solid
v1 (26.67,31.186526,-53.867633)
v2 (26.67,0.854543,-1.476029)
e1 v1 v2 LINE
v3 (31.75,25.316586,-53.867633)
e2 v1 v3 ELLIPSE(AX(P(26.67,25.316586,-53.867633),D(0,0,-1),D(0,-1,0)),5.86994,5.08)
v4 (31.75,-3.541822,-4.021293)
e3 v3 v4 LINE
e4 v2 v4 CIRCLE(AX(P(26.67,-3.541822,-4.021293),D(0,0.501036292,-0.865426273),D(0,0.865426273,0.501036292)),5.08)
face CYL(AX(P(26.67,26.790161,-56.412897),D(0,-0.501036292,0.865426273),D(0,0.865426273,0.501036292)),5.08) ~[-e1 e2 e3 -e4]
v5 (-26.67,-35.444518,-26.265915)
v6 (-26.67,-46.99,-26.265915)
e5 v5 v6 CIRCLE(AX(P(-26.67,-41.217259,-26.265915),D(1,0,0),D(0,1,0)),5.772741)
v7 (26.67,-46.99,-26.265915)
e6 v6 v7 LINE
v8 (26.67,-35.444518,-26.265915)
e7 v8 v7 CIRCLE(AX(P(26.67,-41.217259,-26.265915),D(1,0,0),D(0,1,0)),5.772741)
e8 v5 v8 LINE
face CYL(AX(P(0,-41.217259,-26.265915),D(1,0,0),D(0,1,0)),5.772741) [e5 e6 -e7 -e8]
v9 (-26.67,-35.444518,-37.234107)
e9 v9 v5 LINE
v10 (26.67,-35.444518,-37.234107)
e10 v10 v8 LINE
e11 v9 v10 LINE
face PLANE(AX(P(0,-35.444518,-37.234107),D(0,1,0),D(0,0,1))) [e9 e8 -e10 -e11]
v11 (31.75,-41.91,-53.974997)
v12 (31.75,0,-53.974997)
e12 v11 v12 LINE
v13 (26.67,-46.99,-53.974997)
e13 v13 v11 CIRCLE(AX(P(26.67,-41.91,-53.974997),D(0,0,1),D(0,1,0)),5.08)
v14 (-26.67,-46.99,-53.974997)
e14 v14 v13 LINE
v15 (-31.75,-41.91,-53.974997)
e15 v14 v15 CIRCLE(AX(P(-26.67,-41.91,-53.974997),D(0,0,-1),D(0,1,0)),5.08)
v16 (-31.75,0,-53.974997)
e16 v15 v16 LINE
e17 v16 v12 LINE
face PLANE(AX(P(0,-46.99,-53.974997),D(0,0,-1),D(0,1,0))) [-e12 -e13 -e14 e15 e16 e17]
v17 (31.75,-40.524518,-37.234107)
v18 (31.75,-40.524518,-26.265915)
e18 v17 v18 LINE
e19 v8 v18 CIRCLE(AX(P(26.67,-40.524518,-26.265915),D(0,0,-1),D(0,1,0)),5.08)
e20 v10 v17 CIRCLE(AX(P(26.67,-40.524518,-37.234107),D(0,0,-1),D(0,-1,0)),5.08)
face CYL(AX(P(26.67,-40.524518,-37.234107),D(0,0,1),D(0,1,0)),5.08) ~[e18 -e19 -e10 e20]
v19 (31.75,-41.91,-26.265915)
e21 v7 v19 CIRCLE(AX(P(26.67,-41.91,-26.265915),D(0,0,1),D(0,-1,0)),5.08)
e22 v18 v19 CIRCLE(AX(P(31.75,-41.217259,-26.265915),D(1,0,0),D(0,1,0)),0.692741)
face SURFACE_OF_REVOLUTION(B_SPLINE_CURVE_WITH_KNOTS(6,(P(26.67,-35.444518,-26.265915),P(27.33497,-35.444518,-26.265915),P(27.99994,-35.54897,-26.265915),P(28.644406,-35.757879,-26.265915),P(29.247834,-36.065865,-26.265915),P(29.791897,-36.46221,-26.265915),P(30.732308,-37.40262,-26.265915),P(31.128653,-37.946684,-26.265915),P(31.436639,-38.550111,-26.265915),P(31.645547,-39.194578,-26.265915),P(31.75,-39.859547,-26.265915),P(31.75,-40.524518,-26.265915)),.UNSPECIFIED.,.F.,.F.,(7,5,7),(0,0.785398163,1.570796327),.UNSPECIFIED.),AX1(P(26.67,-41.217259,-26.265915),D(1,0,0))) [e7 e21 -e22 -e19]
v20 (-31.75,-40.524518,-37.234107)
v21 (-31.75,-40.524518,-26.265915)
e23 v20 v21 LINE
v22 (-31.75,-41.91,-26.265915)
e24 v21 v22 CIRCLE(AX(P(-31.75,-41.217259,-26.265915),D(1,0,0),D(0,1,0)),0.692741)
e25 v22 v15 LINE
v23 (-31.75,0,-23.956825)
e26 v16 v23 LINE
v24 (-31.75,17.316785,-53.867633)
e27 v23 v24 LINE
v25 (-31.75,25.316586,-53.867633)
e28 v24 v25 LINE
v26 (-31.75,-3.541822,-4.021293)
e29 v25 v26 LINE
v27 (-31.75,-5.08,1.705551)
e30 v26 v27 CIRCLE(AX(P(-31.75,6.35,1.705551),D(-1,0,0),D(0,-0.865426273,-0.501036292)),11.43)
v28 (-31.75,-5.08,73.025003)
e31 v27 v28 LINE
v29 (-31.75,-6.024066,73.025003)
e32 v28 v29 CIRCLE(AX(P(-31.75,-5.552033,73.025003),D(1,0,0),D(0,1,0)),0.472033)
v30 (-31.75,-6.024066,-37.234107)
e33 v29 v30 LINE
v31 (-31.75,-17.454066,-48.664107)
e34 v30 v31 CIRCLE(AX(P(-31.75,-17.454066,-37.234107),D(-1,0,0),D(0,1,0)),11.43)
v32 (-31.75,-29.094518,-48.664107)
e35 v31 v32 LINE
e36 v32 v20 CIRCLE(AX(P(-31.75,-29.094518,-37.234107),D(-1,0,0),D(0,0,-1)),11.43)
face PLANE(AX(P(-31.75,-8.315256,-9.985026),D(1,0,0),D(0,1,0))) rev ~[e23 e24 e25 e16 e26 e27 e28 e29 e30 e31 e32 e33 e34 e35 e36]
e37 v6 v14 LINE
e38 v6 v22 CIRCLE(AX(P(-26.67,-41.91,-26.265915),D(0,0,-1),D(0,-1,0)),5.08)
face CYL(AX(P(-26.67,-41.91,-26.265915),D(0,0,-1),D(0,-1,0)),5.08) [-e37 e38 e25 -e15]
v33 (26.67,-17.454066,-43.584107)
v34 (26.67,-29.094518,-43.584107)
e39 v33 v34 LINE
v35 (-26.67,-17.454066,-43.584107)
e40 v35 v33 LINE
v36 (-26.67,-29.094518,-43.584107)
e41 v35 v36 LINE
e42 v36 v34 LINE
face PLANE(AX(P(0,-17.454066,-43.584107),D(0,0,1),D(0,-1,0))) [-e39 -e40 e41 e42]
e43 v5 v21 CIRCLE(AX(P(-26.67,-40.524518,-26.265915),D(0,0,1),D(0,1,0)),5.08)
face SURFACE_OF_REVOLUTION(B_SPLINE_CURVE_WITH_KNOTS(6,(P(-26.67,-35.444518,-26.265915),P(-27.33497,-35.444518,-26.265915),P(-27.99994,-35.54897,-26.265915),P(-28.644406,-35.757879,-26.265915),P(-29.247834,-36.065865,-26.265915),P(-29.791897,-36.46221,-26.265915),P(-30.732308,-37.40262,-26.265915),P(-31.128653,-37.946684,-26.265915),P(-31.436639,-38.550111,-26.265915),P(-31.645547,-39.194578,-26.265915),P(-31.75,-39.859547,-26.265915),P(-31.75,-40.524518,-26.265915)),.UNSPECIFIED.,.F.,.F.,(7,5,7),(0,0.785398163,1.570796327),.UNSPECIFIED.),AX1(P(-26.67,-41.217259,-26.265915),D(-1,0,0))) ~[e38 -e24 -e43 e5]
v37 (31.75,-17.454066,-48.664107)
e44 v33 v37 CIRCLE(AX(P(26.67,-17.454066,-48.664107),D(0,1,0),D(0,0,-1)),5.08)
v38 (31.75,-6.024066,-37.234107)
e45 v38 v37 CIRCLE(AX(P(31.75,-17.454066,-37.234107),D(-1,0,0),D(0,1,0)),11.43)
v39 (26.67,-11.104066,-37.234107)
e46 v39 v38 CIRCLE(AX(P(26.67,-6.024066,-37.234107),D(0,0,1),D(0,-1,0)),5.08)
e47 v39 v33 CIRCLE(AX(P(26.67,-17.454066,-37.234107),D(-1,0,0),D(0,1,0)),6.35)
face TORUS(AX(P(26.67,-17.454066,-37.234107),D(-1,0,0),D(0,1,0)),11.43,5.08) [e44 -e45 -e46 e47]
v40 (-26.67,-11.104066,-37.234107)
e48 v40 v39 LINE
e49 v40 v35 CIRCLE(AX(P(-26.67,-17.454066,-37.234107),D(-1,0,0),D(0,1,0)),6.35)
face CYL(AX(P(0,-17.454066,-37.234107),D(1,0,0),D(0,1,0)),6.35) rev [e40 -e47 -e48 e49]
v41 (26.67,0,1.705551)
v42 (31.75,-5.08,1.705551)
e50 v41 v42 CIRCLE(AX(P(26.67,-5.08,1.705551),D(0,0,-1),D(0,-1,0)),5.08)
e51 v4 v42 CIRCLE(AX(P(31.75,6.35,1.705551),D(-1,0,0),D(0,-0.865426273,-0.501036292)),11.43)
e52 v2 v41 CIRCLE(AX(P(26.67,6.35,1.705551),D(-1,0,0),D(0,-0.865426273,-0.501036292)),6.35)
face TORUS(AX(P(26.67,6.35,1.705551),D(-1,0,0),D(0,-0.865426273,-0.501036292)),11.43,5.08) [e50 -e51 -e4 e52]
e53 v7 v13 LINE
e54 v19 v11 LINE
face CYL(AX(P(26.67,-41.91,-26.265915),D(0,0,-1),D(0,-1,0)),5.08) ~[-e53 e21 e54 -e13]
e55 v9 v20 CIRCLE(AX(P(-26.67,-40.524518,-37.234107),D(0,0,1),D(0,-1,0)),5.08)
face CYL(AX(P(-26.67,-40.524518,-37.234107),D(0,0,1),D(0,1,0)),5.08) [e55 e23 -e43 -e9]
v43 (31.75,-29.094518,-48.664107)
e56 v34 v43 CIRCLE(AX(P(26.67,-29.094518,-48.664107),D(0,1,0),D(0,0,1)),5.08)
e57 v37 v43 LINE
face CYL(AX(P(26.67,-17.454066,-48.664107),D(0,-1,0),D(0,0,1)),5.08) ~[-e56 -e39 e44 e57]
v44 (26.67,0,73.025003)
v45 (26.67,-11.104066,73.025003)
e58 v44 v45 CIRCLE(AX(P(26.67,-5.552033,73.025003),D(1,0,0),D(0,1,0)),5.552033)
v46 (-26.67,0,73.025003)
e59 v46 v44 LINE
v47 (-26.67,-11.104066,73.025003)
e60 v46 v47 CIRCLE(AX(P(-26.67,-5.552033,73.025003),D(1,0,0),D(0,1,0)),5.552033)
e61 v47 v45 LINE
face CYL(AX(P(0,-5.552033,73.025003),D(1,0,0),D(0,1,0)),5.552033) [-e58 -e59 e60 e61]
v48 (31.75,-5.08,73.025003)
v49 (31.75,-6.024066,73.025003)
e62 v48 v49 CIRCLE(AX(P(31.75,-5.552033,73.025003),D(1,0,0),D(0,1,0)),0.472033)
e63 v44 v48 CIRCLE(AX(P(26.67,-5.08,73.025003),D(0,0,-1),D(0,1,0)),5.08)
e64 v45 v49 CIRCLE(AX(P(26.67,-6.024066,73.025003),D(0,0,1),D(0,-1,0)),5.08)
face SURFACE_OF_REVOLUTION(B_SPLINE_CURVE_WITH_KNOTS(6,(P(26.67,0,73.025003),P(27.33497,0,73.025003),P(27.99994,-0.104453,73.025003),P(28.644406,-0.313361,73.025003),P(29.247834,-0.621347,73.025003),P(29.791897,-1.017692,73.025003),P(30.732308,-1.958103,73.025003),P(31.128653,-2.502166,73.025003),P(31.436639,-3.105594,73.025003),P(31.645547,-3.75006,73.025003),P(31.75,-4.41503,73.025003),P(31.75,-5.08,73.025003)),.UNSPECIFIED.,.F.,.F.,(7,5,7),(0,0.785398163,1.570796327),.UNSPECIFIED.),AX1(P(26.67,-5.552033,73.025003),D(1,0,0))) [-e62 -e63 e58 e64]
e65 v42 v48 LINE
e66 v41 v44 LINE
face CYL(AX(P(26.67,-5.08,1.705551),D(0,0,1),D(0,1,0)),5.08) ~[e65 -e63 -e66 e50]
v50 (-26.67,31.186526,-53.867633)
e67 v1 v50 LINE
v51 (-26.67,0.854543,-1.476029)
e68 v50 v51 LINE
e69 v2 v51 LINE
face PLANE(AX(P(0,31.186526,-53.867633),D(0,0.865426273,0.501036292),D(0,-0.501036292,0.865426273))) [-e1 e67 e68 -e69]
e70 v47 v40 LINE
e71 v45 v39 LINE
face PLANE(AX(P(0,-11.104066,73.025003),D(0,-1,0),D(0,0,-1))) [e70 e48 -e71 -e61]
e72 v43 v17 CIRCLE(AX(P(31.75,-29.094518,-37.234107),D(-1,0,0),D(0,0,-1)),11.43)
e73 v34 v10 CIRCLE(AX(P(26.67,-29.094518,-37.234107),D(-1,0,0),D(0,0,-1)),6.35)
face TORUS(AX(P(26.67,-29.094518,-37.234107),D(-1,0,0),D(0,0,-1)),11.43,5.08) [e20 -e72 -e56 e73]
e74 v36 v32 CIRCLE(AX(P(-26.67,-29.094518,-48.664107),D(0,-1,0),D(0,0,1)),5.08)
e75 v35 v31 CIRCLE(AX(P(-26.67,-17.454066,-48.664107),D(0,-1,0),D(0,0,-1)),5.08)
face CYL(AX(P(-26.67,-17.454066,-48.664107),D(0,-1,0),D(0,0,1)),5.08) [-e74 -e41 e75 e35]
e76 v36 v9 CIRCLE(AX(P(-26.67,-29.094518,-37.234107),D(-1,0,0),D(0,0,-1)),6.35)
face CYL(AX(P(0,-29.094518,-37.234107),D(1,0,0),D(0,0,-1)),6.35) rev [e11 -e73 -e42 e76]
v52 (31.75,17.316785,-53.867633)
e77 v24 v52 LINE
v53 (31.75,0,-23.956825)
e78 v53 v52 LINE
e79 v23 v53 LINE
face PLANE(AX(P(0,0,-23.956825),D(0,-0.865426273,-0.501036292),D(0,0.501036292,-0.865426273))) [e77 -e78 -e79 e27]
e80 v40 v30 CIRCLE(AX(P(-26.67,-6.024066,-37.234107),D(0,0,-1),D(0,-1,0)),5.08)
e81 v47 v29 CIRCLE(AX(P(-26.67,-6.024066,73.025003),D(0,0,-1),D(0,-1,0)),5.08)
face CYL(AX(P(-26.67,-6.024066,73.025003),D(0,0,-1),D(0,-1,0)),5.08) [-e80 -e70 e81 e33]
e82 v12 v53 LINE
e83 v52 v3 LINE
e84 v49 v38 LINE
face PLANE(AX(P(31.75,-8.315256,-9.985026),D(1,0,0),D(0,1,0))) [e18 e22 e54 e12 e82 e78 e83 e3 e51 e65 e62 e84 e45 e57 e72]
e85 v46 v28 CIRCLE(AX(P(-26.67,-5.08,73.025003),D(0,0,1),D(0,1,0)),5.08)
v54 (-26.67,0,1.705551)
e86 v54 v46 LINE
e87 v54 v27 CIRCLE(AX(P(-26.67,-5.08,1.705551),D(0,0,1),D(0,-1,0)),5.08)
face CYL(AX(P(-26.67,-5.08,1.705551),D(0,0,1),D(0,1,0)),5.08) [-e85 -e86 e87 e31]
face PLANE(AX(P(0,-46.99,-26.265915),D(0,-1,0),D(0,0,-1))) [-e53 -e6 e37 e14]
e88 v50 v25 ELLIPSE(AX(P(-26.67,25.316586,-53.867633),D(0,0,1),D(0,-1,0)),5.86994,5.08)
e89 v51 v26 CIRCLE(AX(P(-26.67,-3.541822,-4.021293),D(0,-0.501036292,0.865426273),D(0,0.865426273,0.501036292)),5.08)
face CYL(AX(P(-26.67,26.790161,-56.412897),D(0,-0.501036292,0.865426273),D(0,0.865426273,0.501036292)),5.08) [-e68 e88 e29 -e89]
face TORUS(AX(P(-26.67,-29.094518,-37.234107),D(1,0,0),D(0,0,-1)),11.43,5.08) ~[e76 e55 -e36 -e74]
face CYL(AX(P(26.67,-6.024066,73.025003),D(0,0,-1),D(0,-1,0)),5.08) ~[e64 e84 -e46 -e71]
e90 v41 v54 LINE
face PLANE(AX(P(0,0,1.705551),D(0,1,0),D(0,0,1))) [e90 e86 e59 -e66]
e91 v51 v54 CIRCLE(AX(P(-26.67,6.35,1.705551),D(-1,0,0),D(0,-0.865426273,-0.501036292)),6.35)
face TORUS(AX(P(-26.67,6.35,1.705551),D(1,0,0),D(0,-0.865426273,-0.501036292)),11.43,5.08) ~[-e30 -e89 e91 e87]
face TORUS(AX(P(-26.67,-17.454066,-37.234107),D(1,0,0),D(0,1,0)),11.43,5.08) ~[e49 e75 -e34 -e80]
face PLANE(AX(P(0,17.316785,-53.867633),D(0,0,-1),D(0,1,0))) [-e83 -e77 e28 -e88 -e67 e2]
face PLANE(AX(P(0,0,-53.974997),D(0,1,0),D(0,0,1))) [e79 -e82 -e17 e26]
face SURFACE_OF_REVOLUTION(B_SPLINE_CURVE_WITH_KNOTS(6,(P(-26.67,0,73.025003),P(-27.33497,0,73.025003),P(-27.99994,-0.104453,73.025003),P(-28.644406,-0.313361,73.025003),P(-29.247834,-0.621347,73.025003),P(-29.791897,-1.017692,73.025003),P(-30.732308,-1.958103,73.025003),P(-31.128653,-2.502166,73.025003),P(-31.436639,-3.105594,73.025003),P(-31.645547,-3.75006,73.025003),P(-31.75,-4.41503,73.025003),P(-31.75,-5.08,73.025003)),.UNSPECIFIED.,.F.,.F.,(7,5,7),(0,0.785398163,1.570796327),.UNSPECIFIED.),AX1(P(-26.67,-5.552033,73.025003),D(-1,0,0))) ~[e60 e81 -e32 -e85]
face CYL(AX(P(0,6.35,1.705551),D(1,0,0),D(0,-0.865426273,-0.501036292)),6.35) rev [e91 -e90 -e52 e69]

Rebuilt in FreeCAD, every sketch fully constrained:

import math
import FreeCAD as App
import Part
import Sketcher
from FreeCAD import Vector
Q = App.Units.Quantity


def edges_at(feature, points):
    """Names of the edges that pass closest to the given points."""
    edges = feature.Shape.Edges
    near = lambda p: min(range(len(edges)), key=lambda i: edges[i].distToShape(Part.Vertex(*p))[0])
    return sorted({f"Edge{near(p) + 1}" for p in points})

doc = App.newDocument("Part")
body = doc.addObject("PartDesign::Body", "Body")

# Sketch on YZ plane
sketch1 = body.newObject("Sketcher::SketchObject", "Sketch")
sketch1.AttachmentSupport = (doc.getObject("YZ_Plane"), [""])
sketch1.MapMode = "FlatFace"
sketch1.addGeometry([
    Part.LineSegment(Vector(0, 1.7, 0), Vector(0, 73, 0)),  # 0
    Part.ArcOfCircle(Part.Circle(Vector(-5.6, 73, 0), Vector(0, 0, 1), 5.6), math.radians(0), math.radians(180)),  # 1
    Part.LineSegment(Vector(-11.1, 73, 0), Vector(-11.1, -37.2, 0)),  # 2
    Part.ArcOfCircle(Part.Circle(Vector(-17.5, -37.2, 0), Vector(0, 0, 1), 6.3), math.radians(-90), math.radians(0)),  # 3
    Part.LineSegment(Vector(-17.5, -43.6, 0), Vector(-29.1, -43.6, 0)),  # 4
    Part.ArcOfCircle(Part.Circle(Vector(-29.1, -37.2, 0), Vector(0, 0, 1), 6.3), math.radians(180), math.radians(270)),  # 5
    Part.LineSegment(Vector(-35.4, -37.2, 0), Vector(-35.4, -26.3, 0)),  # 6
    Part.ArcOfCircle(Part.Circle(Vector(-41.2, -26.3, 0), Vector(0, 0, 1), 5.8), math.radians(0), math.radians(180)),  # 7
    Part.LineSegment(Vector(-47, -26.3, 0), Vector(-47, -54, 0)),  # 8
    Part.LineSegment(Vector(-47, -54, 0), Vector(0, -54, 0)),  # 9
    Part.LineSegment(Vector(0, -54, 0), Vector(0, -24, 0)),  # 10
    Part.LineSegment(Vector(0, -24, 0), Vector(17.3, -53.9, 0)),  # 11
    Part.LineSegment(Vector(17.3, -53.9, 0), Vector(31.2, -53.9, 0)),  # 12
    Part.LineSegment(Vector(31.2, -53.9, 0), Vector(0.9, -1.5, 0)),  # 13
    Part.ArcOfCircle(Part.Circle(Vector(6.3, 1.7, 0), Vector(0, 0, 1), 6.3), math.radians(180), math.radians(210)),  # 14
], False)
sketch1.addConstraint([
    Sketcher.Constraint("Tangent", 0, 2, 1, 1),
    Sketcher.Constraint("Tangent", 1, 2, 2, 1),
    Sketcher.Constraint("Tangent", 2, 2, 3, 2),
    Sketcher.Constraint("Tangent", 3, 1, 4, 1),
    Sketcher.Constraint("Tangent", 4, 2, 5, 2),
    Sketcher.Constraint("Tangent", 5, 1, 6, 1),
    Sketcher.Constraint("Tangent", 6, 2, 7, 1),
    Sketcher.Constraint("Tangent", 7, 2, 8, 1),
    Sketcher.Constraint("Coincident", 8, 2, 9, 1),
    Sketcher.Constraint("Coincident", 9, 2, 10, 1),
    Sketcher.Constraint("Coincident", 10, 2, 11, 1),
    Sketcher.Constraint("Coincident", 11, 2, 12, 1),
    Sketcher.Constraint("Coincident", 12, 2, 13, 1),
    Sketcher.Constraint("Tangent", 13, 2, 14, 2),
    Sketcher.Constraint("Tangent", 14, 1, 0, 1),
    Sketcher.Constraint("Vertical", 0),
    Sketcher.Constraint("Vertical", 2),
    Sketcher.Constraint("Horizontal", 4),
    Sketcher.Constraint("Vertical", 6),
    Sketcher.Constraint("Vertical", 8),
    Sketcher.Constraint("Horizontal", 9),
    Sketcher.Constraint("Vertical", 10),
    Sketcher.Constraint("Horizontal", 12),
    Sketcher.Constraint("Equal", 3, 5),
    Sketcher.Constraint("Equal", 5, 14),
    Sketcher.Constraint("PointOnObject", 0, 2, -2),
    Sketcher.Constraint("PointOnObject", 9, 2, -2),
    Sketcher.Constraint("Parallel", 11, 13),
    Sketcher.Constraint("Radius", 3, Q("0.25 in")),
    Sketcher.Constraint("DistanceX", 9, 1, 9, 2, Q("1.85 in")),
    Sketcher.Constraint("DistanceY", -1, 1, 1, 3, Q("2.8750001 in")),
    Sketcher.Constraint("DistanceY", 8, 2, -1, 1, Q("2.1249999 in")),
    Sketcher.Constraint("Radius", 7, Q("5.772741 mm")),
    Sketcher.Constraint("Radius", 1, Q("5.552033 mm")),
    Sketcher.Constraint("DistanceX", 12, 1, 12, 2, Q("13.869741 mm")),
    Sketcher.Constraint("DistanceY", 2, 2, 2, 1, Q("110.25911 mm")),
    Sketcher.Constraint("DistanceY", 6, 1, 6, 2, Q("10.968192 mm")),
    Sketcher.Constraint("DistanceY", 10, 1, 10, 2, Q("30.018172 mm")),
    Sketcher.Constraint("DistanceY", 0, 1, 0, 2, Q("71.319452 mm")),
    Sketcher.Constraint("DistanceX", 2, 2, 11, 2, Q("28.420851 mm")),
])
pad1 = body.newObject("PartDesign::Pad", "Pad")
pad1.Profile = sketch1
pad1.Length = Q("2.5 in")
pad1.Midplane = True
doc.recompute()

fillet = body.newObject("PartDesign::Fillet", "Fillet")
fillet.Base = (pad1, edges_at(pad1, [(31.75, -11.104, 17.895), (-31.75, -11.104, 17.895)]))
fillet.Radius = Q("0.2 in")

doc.recompute()
